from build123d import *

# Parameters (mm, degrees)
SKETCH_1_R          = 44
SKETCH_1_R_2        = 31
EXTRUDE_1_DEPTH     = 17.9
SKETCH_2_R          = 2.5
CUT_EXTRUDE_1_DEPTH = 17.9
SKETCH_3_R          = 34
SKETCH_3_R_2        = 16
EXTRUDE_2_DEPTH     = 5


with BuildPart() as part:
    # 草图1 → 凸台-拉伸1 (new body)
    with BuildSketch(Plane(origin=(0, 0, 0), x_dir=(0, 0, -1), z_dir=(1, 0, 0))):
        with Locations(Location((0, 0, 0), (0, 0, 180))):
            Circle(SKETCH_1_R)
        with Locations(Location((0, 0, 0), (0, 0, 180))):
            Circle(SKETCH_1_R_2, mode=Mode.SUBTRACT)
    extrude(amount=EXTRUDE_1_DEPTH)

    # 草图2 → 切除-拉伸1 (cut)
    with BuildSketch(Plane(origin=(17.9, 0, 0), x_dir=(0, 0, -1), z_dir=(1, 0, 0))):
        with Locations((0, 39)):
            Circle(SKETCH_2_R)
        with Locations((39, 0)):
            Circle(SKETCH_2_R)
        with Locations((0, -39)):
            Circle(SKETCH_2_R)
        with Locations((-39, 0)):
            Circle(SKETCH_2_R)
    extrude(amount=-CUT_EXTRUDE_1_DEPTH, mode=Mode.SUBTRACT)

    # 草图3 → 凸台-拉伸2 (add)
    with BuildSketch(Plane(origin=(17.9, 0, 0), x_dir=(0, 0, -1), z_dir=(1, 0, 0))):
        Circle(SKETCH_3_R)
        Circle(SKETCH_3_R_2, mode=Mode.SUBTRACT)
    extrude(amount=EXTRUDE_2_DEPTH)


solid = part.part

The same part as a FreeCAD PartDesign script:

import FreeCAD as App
import Part
import Sketcher

V = App.Vector

doc = App.newDocument("Part")
body = doc.addObject("PartDesign::Body", "Body")

sketch1 = doc.addObject("Sketcher::SketchObject", "Sketch")
body.addObject(sketch1)
sketch1.AttachmentSupport = (doc.YZ_Plane, [""])
sketch1.MapMode = "FlatFace"
sketch1.addGeometry(Part.Circle(V(0, 0, 0), V(0, 0, 1), 44), False)
sketch1.addGeometry(Part.Circle(V(0, 0, 0), V(0, 0, 1), 31), False)
sketch1.addConstraint(Sketcher.Constraint("Coincident", 0, 3, -1, 1))
sketch1.addConstraint(Sketcher.Constraint("Coincident", 1, 3, -1, 1))
sketch1.addConstraint(Sketcher.Constraint("Diameter", 0, 88.0))
sketch1.addConstraint(Sketcher.Constraint("Diameter", 1, 62.0))
pad1 = doc.addObject("PartDesign::Pad", "Pad")
body.addObject(pad1)
pad1.Profile = sketch1
pad1.Length = 17.9

sketch2 = doc.addObject("Sketcher::SketchObject", "Sketch001")
body.addObject(sketch2)
sketch2.AttachmentSupport = (doc.YZ_Plane, [""])
sketch2.MapMode = "FlatFace"
sketch2.AttachmentOffset = App.Placement(V(0, 0, 17.9), App.Rotation())
sketch2.addGeometry(Part.Circle(V(39, 0, 0), V(0, 0, 1), 2.5), False)
sketch2.addGeometry(Part.Circle(V(0, -39, 0), V(0, 0, 1), 2.5), False)
sketch2.addGeometry(Part.Circle(V(-39, 0, 0), V(0, 0, 1), 2.5), False)
sketch2.addGeometry(Part.Circle(V(0, 39, 0), V(0, 0, 1), 2.5), False)
sketch2.addConstraint(Sketcher.Constraint("Equal", 0, 1))
sketch2.addConstraint(Sketcher.Constraint("Equal", 1, 2))
sketch2.addConstraint(Sketcher.Constraint("Equal", 2, 3))
sketch2.addConstraint(Sketcher.Constraint("Symmetric", 0, 3, 2, 3, -1, 1))
sketch2.addConstraint(Sketcher.Constraint("Symmetric", 1, 3, 3, 3, -1, 1))
sketch2.addConstraint(Sketcher.Constraint("PointOnObject", 0, 3, -1))
sketch2.addConstraint(Sketcher.Constraint("PointOnObject", 1, 3, -2))
sketch2.addConstraint(Sketcher.Constraint("Diameter", 0, 5.0))
sketch2.addConstraint(Sketcher.Constraint("DistanceX", -1, 1, 0, 3, 39.0))
sketch2.addConstraint(Sketcher.Constraint("DistanceY", 1, 3, -1, 1, 39.0))
pocket1 = doc.addObject("PartDesign::Pocket", "Pocket")
body.addObject(pocket1)
pocket1.Profile = sketch2
pocket1.Length = 17.9

sketch3 = doc.addObject("Sketcher::SketchObject", "Sketch002")
body.addObject(sketch3)
sketch3.AttachmentSupport = (doc.YZ_Plane, [""])
sketch3.MapMode = "FlatFace"
sketch3.AttachmentOffset = App.Placement(V(0, 0, 17.9), App.Rotation())
sketch3.addGeometry(Part.Circle(V(0, 0, 0), V(0, 0, 1), 34), False)
sketch3.addGeometry(Part.Circle(V(0, 0, 0), V(0, 0, 1), 16), False)
sketch3.addConstraint(Sketcher.Constraint("Coincident", 0, 3, -1, 1))
sketch3.addConstraint(Sketcher.Constraint("Coincident", 1, 3, -1, 1))
sketch3.addConstraint(Sketcher.Constraint("Diameter", 0, 68.0))
sketch3.addConstraint(Sketcher.Constraint("Diameter", 1, 32.0))
pad2 = doc.addObject("PartDesign::Pad", "Pad001")
body.addObject(pad2)
pad2.Profile = sketch3
pad2.Length = 5

doc.recompute()
